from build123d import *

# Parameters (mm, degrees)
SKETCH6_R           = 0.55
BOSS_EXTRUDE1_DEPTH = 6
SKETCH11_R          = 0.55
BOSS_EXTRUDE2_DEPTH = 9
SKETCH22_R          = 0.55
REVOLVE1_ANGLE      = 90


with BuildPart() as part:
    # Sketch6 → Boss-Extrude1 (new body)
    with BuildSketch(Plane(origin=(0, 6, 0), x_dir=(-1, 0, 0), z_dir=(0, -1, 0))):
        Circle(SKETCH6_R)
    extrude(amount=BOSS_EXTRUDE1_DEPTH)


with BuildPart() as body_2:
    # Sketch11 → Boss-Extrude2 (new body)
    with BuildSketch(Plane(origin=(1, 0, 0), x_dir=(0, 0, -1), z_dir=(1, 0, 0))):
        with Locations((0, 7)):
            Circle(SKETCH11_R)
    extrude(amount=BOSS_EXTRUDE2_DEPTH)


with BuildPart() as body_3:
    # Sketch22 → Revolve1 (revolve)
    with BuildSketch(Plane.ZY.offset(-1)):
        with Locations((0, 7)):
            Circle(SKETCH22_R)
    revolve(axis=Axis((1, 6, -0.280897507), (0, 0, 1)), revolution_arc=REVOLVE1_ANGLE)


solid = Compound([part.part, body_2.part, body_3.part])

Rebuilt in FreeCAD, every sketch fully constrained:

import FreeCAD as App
import Part
import Sketcher
from FreeCAD import Vector
Q = App.Units.Quantity

doc = App.newDocument("Part")
params = doc.addObject("Spreadsheet::Sheet", "Params")
for row, (alias, value) in enumerate([
    ("sketch1_diameter", "1.1 mm"),
    ("pad1_length", "6 mm"),
    ("sketch2_diameter", "1.1 mm"),
    ("pad2_length", "9 mm"),
    ("sketch3_diameter", "1.1 mm"),
    ("sketch3_height", "10 mm"),
    ("revolution_angle", "90 deg"),
], start=1):
    params.set(f"A{row}", alias)
    params.set(f"B{row}", "=" + value)
    params.setAlias(f"B{row}", alias)

body = doc.addObject("PartDesign::Body", "Body")

# Sketch on XZ plane
sketch1 = body.newObject("Sketcher::SketchObject", "Sketch")
sketch1.AttachmentSupport = (doc.getObject("XZ_Plane"), [""])
sketch1.MapMode = "FlatFace"
sketch1.AttachmentOffset = App.Placement(Vector(0, 0, -6), App.Rotation())
sketch1.addGeometry(Part.Circle(Vector(0, 0, 0), Vector(0, 0, 1), 0.55), False)
sketch1.addConstraint([
    Sketcher.Constraint("Coincident", 0, 3, -1, 1),
    Sketcher.Constraint("Diameter", 0, Q("1.1 mm")),
])
sketch1.setExpression("Constraints[1]", "Params.sketch1_diameter")
pad1 = body.newObject("PartDesign::Pad", "Pad")
pad1.Profile = sketch1
pad1.setExpression("Length", "Params.pad1_length")
body2 = doc.addObject("PartDesign::Body", "Body001")

# Sketch on YZ plane
sketch2 = body2.newObject("Sketcher::SketchObject", "Sketch001")
sketch2.AttachmentSupport = (doc.getObject("YZ_Plane001"), [""])
sketch2.MapMode = "FlatFace"
sketch2.AttachmentOffset = App.Placement(Vector(0, 0, 1), App.Rotation())
sketch2.addGeometry(Part.Circle(Vector(7, 0, 0), Vector(0, 0, 1), 0.55), False)
sketch2.addConstraint([
    Sketcher.Constraint("PointOnObject", 0, 3, -1),
    Sketcher.Constraint("Diameter", 0, Q("1.1 mm")),
    Sketcher.Constraint("DistanceX", -1, 1, 0, 3, Q("7 mm")),
])
sketch2.setExpression("Constraints[1]", "Params.sketch2_diameter")
pad2 = body2.newObject("PartDesign::Pad", "Pad001")
pad2.Profile = sketch2
pad2.setExpression("Length", "Params.pad2_length")
body3 = doc.addObject("PartDesign::Body", "Body002")

# Sketch on YZ plane
sketch3 = body3.newObject("Sketcher::SketchObject", "Sketch002")
sketch3.AttachmentSupport = (doc.getObject("YZ_Plane002"), [""])
sketch3.MapMode = "FlatFace"
sketch3.AttachmentOffset = App.Placement(Vector(0, 0, 1), App.Rotation())
sketch3.addGeometry(Part.Circle(Vector(7, 0, 0), Vector(0, 0, 1), 0.55), False)
sketch3.addGeometry(Part.LineSegment(Vector(6, 0, 0), Vector(6, 10, 0)), True)  # axis
sketch3.addConstraint([
    Sketcher.Constraint("Vertical", 1),
    Sketcher.Constraint("PointOnObject", 0, 3, -1),
    Sketcher.Constraint("PointOnObject", 1, 1, -1),
    Sketcher.Constraint("Diameter", 0, Q("1.1 mm")),
    Sketcher.Constraint("DistanceY", 1, 1, 1, 2, Q("10 mm")),
    Sketcher.Constraint("DistanceX", -1, 1, 0, 3, Q("7 mm")),
    Sketcher.Constraint("DistanceX", -1, 1, 1, 1, Q("6 mm")),
])
sketch3.setExpression("Constraints[3]", "Params.sketch3_diameter")
sketch3.setExpression("Constraints[4]", "Params.sketch3_height")
revolution = body3.newObject("PartDesign::Revolution", "Revolution")
revolution.Profile = sketch3
revolution.ReferenceAxis = (sketch3, ["Axis0"])
revolution.setExpression("Angle", "Params.revolution_angle")

doc.recompute()
